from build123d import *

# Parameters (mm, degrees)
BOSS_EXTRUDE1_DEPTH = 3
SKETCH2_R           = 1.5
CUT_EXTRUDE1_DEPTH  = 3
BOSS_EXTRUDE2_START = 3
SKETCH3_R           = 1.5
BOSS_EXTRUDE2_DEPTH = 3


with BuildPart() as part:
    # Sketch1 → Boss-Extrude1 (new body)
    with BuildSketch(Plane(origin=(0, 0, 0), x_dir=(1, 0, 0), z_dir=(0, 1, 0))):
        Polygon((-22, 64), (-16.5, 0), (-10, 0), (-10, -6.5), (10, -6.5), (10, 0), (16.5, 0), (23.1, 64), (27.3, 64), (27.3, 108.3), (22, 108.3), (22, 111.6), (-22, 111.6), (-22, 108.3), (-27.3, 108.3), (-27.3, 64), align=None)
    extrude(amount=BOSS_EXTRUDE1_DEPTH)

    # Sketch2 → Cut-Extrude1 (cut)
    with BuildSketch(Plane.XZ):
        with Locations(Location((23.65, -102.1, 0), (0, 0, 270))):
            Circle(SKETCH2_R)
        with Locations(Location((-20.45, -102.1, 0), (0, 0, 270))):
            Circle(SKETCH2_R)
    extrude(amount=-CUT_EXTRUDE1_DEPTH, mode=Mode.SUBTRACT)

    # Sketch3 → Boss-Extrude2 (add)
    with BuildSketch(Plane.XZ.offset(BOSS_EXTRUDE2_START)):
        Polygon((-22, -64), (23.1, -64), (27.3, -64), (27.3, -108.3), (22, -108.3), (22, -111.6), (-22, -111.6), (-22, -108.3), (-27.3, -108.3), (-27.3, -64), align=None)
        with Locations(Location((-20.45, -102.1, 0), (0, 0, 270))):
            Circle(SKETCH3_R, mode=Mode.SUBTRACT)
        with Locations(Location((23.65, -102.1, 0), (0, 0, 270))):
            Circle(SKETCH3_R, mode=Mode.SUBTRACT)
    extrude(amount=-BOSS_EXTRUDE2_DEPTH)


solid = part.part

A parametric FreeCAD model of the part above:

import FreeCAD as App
import Part
import Sketcher


def add_polygon(sketch, points):
    """Adds a closed chain of lines whose ends are joined by coincident constraints."""
    first, n = sketch.GeometryCount, len(points)
    for a, b in zip(points, points[1:] + points[:1]):
        sketch.addGeometry(Part.LineSegment(App.Vector(*a, 0), App.Vector(*b, 0)), False)
    for i in range(n):
        sketch.addConstraint(Sketcher.Constraint("Coincident", first + i, 2, first + (i + 1) % n, 1))

doc = App.newDocument("Part")
body = doc.addObject("PartDesign::Body", "Body")

sketch1 = doc.addObject("Sketcher::SketchObject", "Sketch")
body.addObject(sketch1)
sketch1.AttachmentSupport = (doc.XZ_Plane, [""])
sketch1.MapMode = "FlatFace"
add_polygon(sketch1, [(-22, -64), (-16.5, 0), (-10, 0), (-10, 6.5), (10, 6.5), (10, 0), (16.5, 0), (23.1, -64), (27.3, -64), (27.3, -108.3), (22, -108.3), (22, -111.6), (-22, -111.6), (-22, -108.3), (-27.3, -108.3), (-27.3, -64)])
sketch1.addConstraint([
    Sketcher.Constraint("Horizontal", 1),
    Sketcher.Constraint("Vertical", 2),
    Sketcher.Constraint("Horizontal", 3),
    Sketcher.Constraint("Vertical", 4),
    Sketcher.Constraint("Horizontal", 5),
    Sketcher.Constraint("Horizontal", 7),
    Sketcher.Constraint("Vertical", 8),
    Sketcher.Constraint("Horizontal", 9),
    Sketcher.Constraint("Vertical", 10),
    Sketcher.Constraint("Horizontal", 11),
    Sketcher.Constraint("Vertical", 12),
    Sketcher.Constraint("Horizontal", 13),
    Sketcher.Constraint("Vertical", 14),
    Sketcher.Constraint("Horizontal", 15),
    Sketcher.Constraint("Symmetric", 1, 2, 4, 2, -1, 1),
    Sketcher.Constraint("Symmetric", 0, 2, 5, 2, -2),
    Sketcher.Constraint("Symmetric", 9, 2, 12, 2, -2),
    Sketcher.Constraint("Symmetric", 7, 2, 14, 2, -2),
    Sketcher.Constraint("Vertical", 12, 2, 15, 2),
    Sketcher.Constraint("Equal", 5, 2),
    Sketcher.Constraint("DistanceX", 3, 1, 3, 2, 20.0),
    Sketcher.Constraint("DistanceX", 11, 2, 11, 1, 44.0),
    Sketcher.Constraint("DistanceX", 1, 1, 1, 2, 6.5),
    Sketcher.Constraint("DistanceX", 7, 1, 7, 2, 4.2),
    Sketcher.Constraint("DistanceX", 9, 2, 9, 1, 5.3),
    Sketcher.Constraint("DistanceY", 8, 2, 8, 1, 44.3),
    Sketcher.Constraint("DistanceY", 10, 2, 10, 1, 3.3),
    Sketcher.Constraint("DistanceY", 6, 2, -1, 1, 64.0),
])
pad1 = doc.addObject("PartDesign::Pad", "Pad")
body.addObject(pad1)
pad1.Profile = sketch1
pad1.Length = 3
pad1.Reversed = True

sketch2 = doc.addObject("Sketcher::SketchObject", "Sketch001")
body.addObject(sketch2)
sketch2.AttachmentSupport = (doc.XZ_Plane, [""])
sketch2.MapMode = "FlatFace"
sketch2.addGeometry([
    Part.Circle(App.Vector(23.6, -102.1, 0), App.Vector(0, 0, 1), 1.5),
    Part.Circle(App.Vector(-20.4, -102.1, 0), App.Vector(0, 0, 1), 1.5),
], False)
sketch2.addConstraint([
    Sketcher.Constraint("Equal", 0, 1),
    Sketcher.Constraint("Horizontal", 0, 3, 1, 3),
    Sketcher.Constraint("Diameter", 0, 3.0),
    Sketcher.Constraint("DistanceY", 0, 3, -1, 1, 102.1),
    Sketcher.Constraint("DistanceX", 1, 3, 0, 3, 44.1),
    Sketcher.Constraint("DistanceX", -1, 1, 0, 3, 23.65),
])
pocket1 = doc.addObject("PartDesign::Pocket", "Pocket")
body.addObject(pocket1)
pocket1.Profile = sketch2
pocket1.Length = 3

sketch3 = doc.addObject("Sketcher::SketchObject", "Sketch002")
body.addObject(sketch3)
sketch3.AttachmentSupport = (doc.XZ_Plane, [""])
sketch3.MapMode = "FlatFace"
sketch3.AttachmentOffset = App.Placement(App.Vector(0, 0, 3), App.Rotation())
add_polygon(sketch3, [(27.3, -64), (-27.3, -64), (-27.3, -108.3), (-22, -108.3), (-22, -111.6), (22, -111.6), (22, -108.3), (27.3, -108.3)])
sketch3.addGeometry(Part.Circle(App.Vector(23.6, -102.1, 0), App.Vector(0, 0, 1), 1.5), False)
sketch3.addGeometry(Part.Circle(App.Vector(-20.4, -102.1, 0), App.Vector(0, 0, 1), 1.5), False)
sketch3.addConstraint([
    Sketcher.Constraint("Horizontal", 0),
    Sketcher.Constraint("Vertical", 1),
    Sketcher.Constraint("Horizontal", 2),
    Sketcher.Constraint("Vertical", 3),
    Sketcher.Constraint("Horizontal", 4),
    Sketcher.Constraint("Vertical", 5),
    Sketcher.Constraint("Horizontal", 6),
    Sketcher.Constraint("Vertical", 7),
    Sketcher.Constraint("Equal", 8, 9),
    Sketcher.Constraint("Symmetric", 2, 2, 5, 2, -2),
    Sketcher.Constraint("Horizontal", 8, 3, 9, 3),
    Sketcher.Constraint("Equal", 2, 6),
    Sketcher.Constraint("Diameter", 8, 3.0),
    Sketcher.Constraint("DistanceX", 4, 1, 4, 2, 44.0),
    Sketcher.Constraint("DistanceX", 0, 2, 0, 1, 54.6),
    Sketcher.Constraint("DistanceY", 1, 2, 1, 1, 44.3),
    Sketcher.Constraint("DistanceY", 3, 2, 3, 1, 3.3),
    Sketcher.Constraint("DistanceY", 0, 2, -1, 1, 64.0),
    Sketcher.Constraint("DistanceY", 8, 3, -1, 1, 102.1),
    Sketcher.Constraint("DistanceX", 9, 3, 8, 3, 44.1),
    Sketcher.Constraint("DistanceX", -1, 1, 8, 3, 23.65),
])
pad2 = doc.addObject("PartDesign::Pad", "Pad001")
body.addObject(pad2)
pad2.Profile = sketch3
pad2.Length = 3
pad2.Reversed = True

doc.recompute()
